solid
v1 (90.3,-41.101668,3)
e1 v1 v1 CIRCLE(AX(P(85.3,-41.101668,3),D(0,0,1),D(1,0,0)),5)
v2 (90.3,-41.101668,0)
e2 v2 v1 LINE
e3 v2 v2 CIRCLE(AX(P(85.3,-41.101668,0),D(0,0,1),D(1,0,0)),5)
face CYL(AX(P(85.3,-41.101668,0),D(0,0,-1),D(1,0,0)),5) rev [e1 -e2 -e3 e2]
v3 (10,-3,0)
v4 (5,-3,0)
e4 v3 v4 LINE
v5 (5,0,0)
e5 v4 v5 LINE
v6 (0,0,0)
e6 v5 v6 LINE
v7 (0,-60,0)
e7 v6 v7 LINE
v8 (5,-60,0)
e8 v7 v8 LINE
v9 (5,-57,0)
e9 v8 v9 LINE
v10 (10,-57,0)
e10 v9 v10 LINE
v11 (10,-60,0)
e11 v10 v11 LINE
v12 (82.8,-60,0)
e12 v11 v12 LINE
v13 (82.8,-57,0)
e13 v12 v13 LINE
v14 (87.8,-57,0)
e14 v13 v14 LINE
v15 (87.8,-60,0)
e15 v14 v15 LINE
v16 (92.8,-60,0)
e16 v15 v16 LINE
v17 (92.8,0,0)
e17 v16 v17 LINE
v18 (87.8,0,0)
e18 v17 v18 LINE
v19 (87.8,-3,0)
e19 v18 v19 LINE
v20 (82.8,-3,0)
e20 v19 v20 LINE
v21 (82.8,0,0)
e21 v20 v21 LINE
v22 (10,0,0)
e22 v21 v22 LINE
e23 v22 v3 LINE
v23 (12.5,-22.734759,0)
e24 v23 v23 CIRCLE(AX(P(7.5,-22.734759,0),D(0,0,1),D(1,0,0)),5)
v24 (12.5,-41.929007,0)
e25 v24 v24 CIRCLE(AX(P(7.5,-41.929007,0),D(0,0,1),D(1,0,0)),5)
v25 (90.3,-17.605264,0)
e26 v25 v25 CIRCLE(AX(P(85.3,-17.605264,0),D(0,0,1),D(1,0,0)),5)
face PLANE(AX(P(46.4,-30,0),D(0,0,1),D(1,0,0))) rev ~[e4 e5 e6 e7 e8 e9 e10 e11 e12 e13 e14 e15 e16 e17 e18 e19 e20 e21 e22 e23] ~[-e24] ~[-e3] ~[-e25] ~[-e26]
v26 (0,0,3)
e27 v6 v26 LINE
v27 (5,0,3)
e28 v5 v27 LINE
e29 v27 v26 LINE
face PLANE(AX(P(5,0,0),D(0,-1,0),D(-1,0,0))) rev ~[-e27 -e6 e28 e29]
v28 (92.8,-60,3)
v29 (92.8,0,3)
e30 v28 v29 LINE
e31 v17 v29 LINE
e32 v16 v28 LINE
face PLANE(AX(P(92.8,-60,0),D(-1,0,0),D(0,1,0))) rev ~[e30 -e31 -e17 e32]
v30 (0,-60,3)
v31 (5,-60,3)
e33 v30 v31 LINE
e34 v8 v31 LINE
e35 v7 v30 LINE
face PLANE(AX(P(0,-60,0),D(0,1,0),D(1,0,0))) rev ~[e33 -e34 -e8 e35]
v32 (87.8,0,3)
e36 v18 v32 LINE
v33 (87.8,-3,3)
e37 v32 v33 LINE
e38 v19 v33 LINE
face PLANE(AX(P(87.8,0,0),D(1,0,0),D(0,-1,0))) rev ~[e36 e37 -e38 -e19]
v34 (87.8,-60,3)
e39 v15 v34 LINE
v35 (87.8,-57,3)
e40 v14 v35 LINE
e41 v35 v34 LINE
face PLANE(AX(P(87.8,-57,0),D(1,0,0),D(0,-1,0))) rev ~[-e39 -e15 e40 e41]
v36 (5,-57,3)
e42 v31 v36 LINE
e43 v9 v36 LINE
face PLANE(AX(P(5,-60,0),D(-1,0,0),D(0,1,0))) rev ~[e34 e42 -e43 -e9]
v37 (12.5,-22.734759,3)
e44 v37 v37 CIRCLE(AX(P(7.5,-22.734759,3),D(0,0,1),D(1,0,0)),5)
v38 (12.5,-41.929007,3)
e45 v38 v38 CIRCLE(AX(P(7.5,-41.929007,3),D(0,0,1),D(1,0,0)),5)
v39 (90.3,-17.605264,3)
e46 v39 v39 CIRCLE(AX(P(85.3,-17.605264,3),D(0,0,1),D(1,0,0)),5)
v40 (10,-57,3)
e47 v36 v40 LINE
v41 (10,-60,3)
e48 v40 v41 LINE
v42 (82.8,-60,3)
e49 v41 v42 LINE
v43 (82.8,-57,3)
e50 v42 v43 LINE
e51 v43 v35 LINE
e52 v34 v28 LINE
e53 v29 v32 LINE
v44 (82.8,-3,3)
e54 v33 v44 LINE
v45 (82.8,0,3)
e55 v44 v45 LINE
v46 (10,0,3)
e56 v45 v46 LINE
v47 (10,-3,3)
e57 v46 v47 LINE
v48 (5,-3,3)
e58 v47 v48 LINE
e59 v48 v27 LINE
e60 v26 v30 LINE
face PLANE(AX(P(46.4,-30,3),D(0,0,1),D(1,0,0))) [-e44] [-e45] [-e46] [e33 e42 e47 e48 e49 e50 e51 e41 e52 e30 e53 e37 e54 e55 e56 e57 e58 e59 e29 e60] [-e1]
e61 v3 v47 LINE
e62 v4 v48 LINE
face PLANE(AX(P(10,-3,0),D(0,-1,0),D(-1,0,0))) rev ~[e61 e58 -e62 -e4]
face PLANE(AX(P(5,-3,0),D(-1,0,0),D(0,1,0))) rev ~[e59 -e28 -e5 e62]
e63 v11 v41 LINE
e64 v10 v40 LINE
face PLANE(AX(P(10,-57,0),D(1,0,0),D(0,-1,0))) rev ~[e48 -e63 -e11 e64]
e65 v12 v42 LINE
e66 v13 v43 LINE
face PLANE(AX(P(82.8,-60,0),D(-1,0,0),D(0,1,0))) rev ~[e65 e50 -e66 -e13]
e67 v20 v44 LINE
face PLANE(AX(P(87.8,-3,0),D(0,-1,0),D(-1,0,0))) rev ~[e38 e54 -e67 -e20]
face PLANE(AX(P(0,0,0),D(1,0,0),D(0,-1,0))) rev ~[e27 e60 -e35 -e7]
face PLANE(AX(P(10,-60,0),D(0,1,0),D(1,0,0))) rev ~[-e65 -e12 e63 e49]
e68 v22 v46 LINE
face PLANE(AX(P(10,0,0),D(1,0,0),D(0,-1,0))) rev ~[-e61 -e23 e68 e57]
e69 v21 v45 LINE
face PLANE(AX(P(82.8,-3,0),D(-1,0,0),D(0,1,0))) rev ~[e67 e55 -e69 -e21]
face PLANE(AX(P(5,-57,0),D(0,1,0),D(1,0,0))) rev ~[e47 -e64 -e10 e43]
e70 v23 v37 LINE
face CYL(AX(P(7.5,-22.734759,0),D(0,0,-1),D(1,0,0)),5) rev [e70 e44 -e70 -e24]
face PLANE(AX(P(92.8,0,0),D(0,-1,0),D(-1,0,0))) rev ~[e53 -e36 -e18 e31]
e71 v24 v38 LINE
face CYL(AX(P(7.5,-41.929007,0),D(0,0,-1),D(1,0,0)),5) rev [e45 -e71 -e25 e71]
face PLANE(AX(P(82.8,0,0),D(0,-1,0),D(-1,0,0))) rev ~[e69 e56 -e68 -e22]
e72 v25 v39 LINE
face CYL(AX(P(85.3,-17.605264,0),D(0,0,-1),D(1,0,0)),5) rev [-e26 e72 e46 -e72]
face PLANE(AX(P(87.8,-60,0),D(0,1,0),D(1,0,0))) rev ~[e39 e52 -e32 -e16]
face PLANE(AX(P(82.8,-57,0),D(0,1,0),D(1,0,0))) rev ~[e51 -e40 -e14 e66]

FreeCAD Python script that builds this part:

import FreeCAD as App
import Part
import Sketcher
Q = App.Units.Quantity


def add_polygon(sketch, points):
    """Adds a closed chain of lines whose ends are joined by coincident constraints."""
    first, n = sketch.GeometryCount, len(points)
    for a, b in zip(points, points[1:] + points[:1]):
        sketch.addGeometry(Part.LineSegment(App.Vector(*a, 0), App.Vector(*b, 0)), False)
    for i in range(n):
        sketch.addConstraint(Sketcher.Constraint("Coincident", first + i, 2, first + (i + 1) % n, 1))

doc = App.newDocument("Part")
params = doc.addObject("Spreadsheet::Sheet", "Params")
for row, (alias, value) in enumerate([
    ("sketch1_diameter", "10 mm"),
    ("sketch1_width", "5 mm"),
    ("sketch1_height", "60 mm"),
    ("sketch1_height2", "3 mm"),
    ("sketch1_width2", "72.8 mm"),
    ("pad1_length", "3 mm"),
], start=1):
    params.set(f"A{row}", alias)
    params.set(f"B{row}", "=" + value)
    params.setAlias(f"B{row}", alias)

body = doc.addObject("PartDesign::Body", "Body")

sketch1 = body.newObject("Sketcher::SketchObject", "Sketch")
sketch1.AttachmentSupport = (doc.getObject("XY_Plane"), [""])
sketch1.MapMode = "FlatFace"
add_polygon(sketch1, [(92.8, -60), (92.8, 0), (87.8, 0), (87.8, -3), (82.8, -3), (82.8, 0), (10, 0), (10, -3), (5, -3), (5, 0), (0, 0), (0, -60), (5, -60), (5, -57), (10, -57), (10, -60), (82.8, -60), (82.8, -57), (87.8, -57), (87.8, -60)])
sketch1.addGeometry(Part.Circle(App.Vector(7.5, -41.929007, 0), App.Vector(0, 0, 1), 5), False)
sketch1.addGeometry(Part.Circle(App.Vector(85.3, -41.101668, 0), App.Vector(0, 0, 1), 5), False)
sketch1.addGeometry(Part.Circle(App.Vector(7.5, -22.734759, 0), App.Vector(0, 0, 1), 5), False)
sketch1.addGeometry(Part.Circle(App.Vector(85.3, -17.605264, 0), App.Vector(0, 0, 1), 5), False)
sketch1.addConstraint([
    Sketcher.Constraint("Vertical", 0),
    Sketcher.Constraint("Horizontal", 1),
    Sketcher.Constraint("Vertical", 2),
    Sketcher.Constraint("Horizontal", 3),
    Sketcher.Constraint("Vertical", 4),
    Sketcher.Constraint("Horizontal", 5),
    Sketcher.Constraint("Vertical", 6),
    Sketcher.Constraint("Horizontal", 7),
    Sketcher.Constraint("Vertical", 8),
    Sketcher.Constraint("Horizontal", 9),
    Sketcher.Constraint("Vertical", 10),
    Sketcher.Constraint("Horizontal", 11),
    Sketcher.Constraint("Vertical", 12),
    Sketcher.Constraint("Horizontal", 13),
    Sketcher.Constraint("Vertical", 14),
    Sketcher.Constraint("Horizontal", 15),
    Sketcher.Constraint("Vertical", 16),
    Sketcher.Constraint("Horizontal", 17),
    Sketcher.Constraint("Vertical", 18),
    Sketcher.Constraint("Horizontal", 19),
    Sketcher.Constraint("Coincident", 9, 2, -1, 1),
    Sketcher.Constraint("Equal", 20, 21),
    Sketcher.Constraint("Equal", 21, 22),
    Sketcher.Constraint("Equal", 22, 23),
    Sketcher.Constraint("PointOnObject", 0, 2, -1),
    Sketcher.Constraint("PointOnObject", 4, 2, -1),
    Sketcher.Constraint("Horizontal", 3, 2, 6, 2),
    Sketcher.Constraint("Horizontal", 11, 2, 14, 2),
    Sketcher.Constraint("Horizontal", 13, 2, 16, 2),
    Sketcher.Constraint("Horizontal", 15, 2, 18, 2),
    Sketcher.Constraint("Vertical", 20, 3, 22, 3),
    Sketcher.Constraint("Vertical", 21, 3, 23, 3),
    Sketcher.Constraint("Vertical", 8, 2, 11, 2),
    Sketcher.Constraint("Vertical", 6, 2, 13, 2),
    Sketcher.Constraint("Vertical", 4, 2, 15, 2),
    Sketcher.Constraint("Vertical", 2, 2, 17, 2),
    Sketcher.Constraint("Equal", 1, 3),
    Sketcher.Constraint("Equal", 3, 7),
    Sketcher.Constraint("Equal", 7, 9),
    Sketcher.Constraint("Equal", 8, 12),
    Sketcher.Constraint("Diameter", 20, Q("10 mm")),
    Sketcher.Constraint("DistanceX", 1, 2, 1, 1, Q("5 mm")),
    Sketcher.Constraint("DistanceY", 0, 1, 0, 2, Q("60 mm")),
    Sketcher.Constraint("DistanceY", 2, 2, 2, 1, Q("3 mm")),
    Sketcher.Constraint("DistanceX", 5, 2, 5, 1, Q("72.8 mm")),
    Sketcher.Constraint("DistanceX", -1, 1, 20, 3, Q("7.5 mm")),
    Sketcher.Constraint("DistanceX", -1, 1, 21, 3, Q("85.3 mm")),
    Sketcher.Constraint("DistanceY", 22, 3, -1, 1, Q("22.734759 mm")),
    Sketcher.Constraint("DistanceY", 20, 3, 21, 3, Q("0.827339 mm")),
    Sketcher.Constraint("DistanceY", 21, 3, 22, 3, Q("18.366909 mm")),
    Sketcher.Constraint("DistanceY", 23, 3, -1, 1, Q("17.605264 mm")),
])
sketch1.setExpression("Constraints[60]", "Params.sketch1_diameter")
sketch1.setExpression("Constraints[61]", "Params.sketch1_width")
sketch1.setExpression("Constraints[62]", "Params.sketch1_height")
sketch1.setExpression("Constraints[63]", "Params.sketch1_height2")
sketch1.setExpression("Constraints[64]", "Params.sketch1_width2")
pad1 = body.newObject("PartDesign::Pad", "Pad")
pad1.Profile = sketch1
pad1.setExpression("Length", "Params.pad1_length")

doc.recompute()
